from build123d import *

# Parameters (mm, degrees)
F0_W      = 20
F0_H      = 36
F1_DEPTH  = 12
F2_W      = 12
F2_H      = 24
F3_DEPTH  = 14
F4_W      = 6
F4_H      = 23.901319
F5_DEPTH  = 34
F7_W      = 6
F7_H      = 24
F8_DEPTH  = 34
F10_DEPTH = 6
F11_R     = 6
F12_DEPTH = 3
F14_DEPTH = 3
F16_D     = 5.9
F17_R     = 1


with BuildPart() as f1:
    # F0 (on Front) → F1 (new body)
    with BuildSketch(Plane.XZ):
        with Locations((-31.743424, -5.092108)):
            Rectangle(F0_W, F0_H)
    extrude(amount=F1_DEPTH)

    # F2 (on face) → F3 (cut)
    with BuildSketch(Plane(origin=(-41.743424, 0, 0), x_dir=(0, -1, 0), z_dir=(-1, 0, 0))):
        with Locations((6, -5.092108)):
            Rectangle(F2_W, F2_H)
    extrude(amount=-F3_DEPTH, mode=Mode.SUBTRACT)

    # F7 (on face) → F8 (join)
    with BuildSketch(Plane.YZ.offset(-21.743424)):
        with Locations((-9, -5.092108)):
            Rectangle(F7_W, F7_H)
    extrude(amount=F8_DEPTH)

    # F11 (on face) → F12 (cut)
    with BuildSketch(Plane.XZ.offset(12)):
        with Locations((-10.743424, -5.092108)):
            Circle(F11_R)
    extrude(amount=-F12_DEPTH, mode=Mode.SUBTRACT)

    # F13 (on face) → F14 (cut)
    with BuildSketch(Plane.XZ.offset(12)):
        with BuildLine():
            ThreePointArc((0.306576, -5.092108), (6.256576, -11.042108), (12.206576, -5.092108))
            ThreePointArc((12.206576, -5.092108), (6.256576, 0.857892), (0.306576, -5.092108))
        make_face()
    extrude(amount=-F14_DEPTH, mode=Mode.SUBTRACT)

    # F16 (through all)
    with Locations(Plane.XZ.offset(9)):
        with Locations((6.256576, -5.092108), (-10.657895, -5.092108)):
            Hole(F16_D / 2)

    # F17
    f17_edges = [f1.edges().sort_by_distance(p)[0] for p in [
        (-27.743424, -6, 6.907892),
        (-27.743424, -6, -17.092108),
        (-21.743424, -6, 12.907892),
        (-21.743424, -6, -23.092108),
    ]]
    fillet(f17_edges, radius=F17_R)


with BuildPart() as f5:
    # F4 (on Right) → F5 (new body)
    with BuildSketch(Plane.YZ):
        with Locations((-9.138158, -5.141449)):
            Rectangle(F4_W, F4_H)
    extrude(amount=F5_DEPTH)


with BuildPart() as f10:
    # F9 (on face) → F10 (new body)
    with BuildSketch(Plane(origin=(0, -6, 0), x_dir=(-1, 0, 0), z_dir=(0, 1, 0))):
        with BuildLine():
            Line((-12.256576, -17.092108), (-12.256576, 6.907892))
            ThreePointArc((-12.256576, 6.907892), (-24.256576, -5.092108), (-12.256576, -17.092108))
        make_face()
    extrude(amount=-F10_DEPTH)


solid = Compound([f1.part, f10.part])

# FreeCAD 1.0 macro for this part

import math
import FreeCAD as App
import Part
import Sketcher


def edges_at(feature, points):
    """Names of the edges that pass closest to the given points."""
    edges = feature.Shape.Edges
    near = lambda p: min(range(len(edges)), key=lambda i: edges[i].distToShape(Part.Vertex(*p))[0])
    return sorted({f"Edge{near(p) + 1}" for p in points})

doc = App.newDocument("Part")
body = doc.addObject("PartDesign::Body", "Body")

# Sketch on XZ plane
sketch1 = doc.addObject("Sketcher::SketchObject", "Sketch")
body.addObject(sketch1)
sketch1.AttachmentSupport = (doc.XZ_Plane, [""])
sketch1.MapMode = "FlatFace"
sketch1.addGeometry([
    Part.LineSegment(App.Vector(-42, 13, 0), App.Vector(-42, -23, 0)),
    Part.LineSegment(App.Vector(-42, -23, 0), App.Vector(-22, -23, 0)),
    Part.LineSegment(App.Vector(-22, -23, 0), App.Vector(-22, 13, 0)),
    Part.LineSegment(App.Vector(-22, 13, 0), App.Vector(-42, 13, 0)),
], False)
sketch1.addConstraint([
    Sketcher.Constraint("Coincident", 0, 2, 1, 1),
    Sketcher.Constraint("Coincident", 1, 2, 2, 1),
    Sketcher.Constraint("Coincident", 2, 2, 3, 1),
    Sketcher.Constraint("Coincident", 3, 2, 0, 1),
    Sketcher.Constraint("Vertical", 0),
    Sketcher.Constraint("Horizontal", 1),
    Sketcher.Constraint("Vertical", 2),
    Sketcher.Constraint("Horizontal", 3),
    Sketcher.Constraint("DistanceX", 1, 1, 1, 2, 20.0),
    Sketcher.Constraint("DistanceY", 0, 2, 0, 1, 36.0),
    Sketcher.Constraint("DistanceX", 0, 2, -1, 1, 41.743424),
    Sketcher.Constraint("DistanceY", 0, 2, -1, 1, 23.092108),
])
pad1 = doc.addObject("PartDesign::Pad", "Pad")
body.addObject(pad1)
pad1.Profile = sketch1
pad1.Length = 12

# Sketch on YZ plane
sketch2 = doc.addObject("Sketcher::SketchObject", "Sketch001")
body.addObject(sketch2)
sketch2.AttachmentSupport = (doc.YZ_Plane, [""])
sketch2.MapMode = "FlatFace"
sketch2.AttachmentOffset = App.Placement(App.Vector(0, 0, -41.743424), App.Rotation())
sketch2.addGeometry([
    Part.LineSegment(App.Vector(0, 7, 0), App.Vector(0, -17, 0)),
    Part.LineSegment(App.Vector(0, -17, 0), App.Vector(-12, -17, 0)),
    Part.LineSegment(App.Vector(-12, -17, 0), App.Vector(-12, 7, 0)),
    Part.LineSegment(App.Vector(-12, 7, 0), App.Vector(0, 7, 0)),
], False)
sketch2.addConstraint([
    Sketcher.Constraint("Coincident", 0, 2, 1, 1),
    Sketcher.Constraint("Coincident", 1, 2, 2, 1),
    Sketcher.Constraint("Coincident", 2, 2, 3, 1),
    Sketcher.Constraint("Coincident", 3, 2, 0, 1),
    Sketcher.Constraint("Vertical", 0),
    Sketcher.Constraint("Horizontal", 1),
    Sketcher.Constraint("Vertical", 2),
    Sketcher.Constraint("Horizontal", 3),
    Sketcher.Constraint("PointOnObject", 0, 2, -2),
    Sketcher.Constraint("DistanceX", 1, 2, 1, 1, 12.0),
    Sketcher.Constraint("DistanceY", 0, 2, 0, 1, 24.0),
    Sketcher.Constraint("DistanceY", 0, 2, -1, 1, 17.092108),
])
pocket1 = doc.addObject("PartDesign::Pocket", "Pocket")
body.addObject(pocket1)
pocket1.Profile = sketch2
pocket1.Length = 14
pocket1.Reversed = True

# Sketch on YZ plane
sketch3 = doc.addObject("Sketcher::SketchObject", "Sketch002")
body.addObject(sketch3)
sketch3.AttachmentSupport = (doc.YZ_Plane, [""])
sketch3.MapMode = "FlatFace"
sketch3.AttachmentOffset = App.Placement(App.Vector(0, 0, -21.743424), App.Rotation())
sketch3.addGeometry([
    Part.LineSegment(App.Vector(-12, 7, 0), App.Vector(-12, -17, 0)),
    Part.LineSegment(App.Vector(-12, -17, 0), App.Vector(-6, -17, 0)),
    Part.LineSegment(App.Vector(-6, -17, 0), App.Vector(-6, 7, 0)),
    Part.LineSegment(App.Vector(-6, 7, 0), App.Vector(-12, 7, 0)),
], False)
sketch3.addConstraint([
    Sketcher.Constraint("Coincident", 0, 2, 1, 1),
    Sketcher.Constraint("Coincident", 1, 2, 2, 1),
    Sketcher.Constraint("Coincident", 2, 2, 3, 1),
    Sketcher.Constraint("Coincident", 3, 2, 0, 1),
    Sketcher.Constraint("Vertical", 0),
    Sketcher.Constraint("Horizontal", 1),
    Sketcher.Constraint("Vertical", 2),
    Sketcher.Constraint("Horizontal", 3),
    Sketcher.Constraint("DistanceX", 1, 1, 1, 2, 6.0),
    Sketcher.Constraint("DistanceY", 0, 2, 0, 1, 24.0),
    Sketcher.Constraint("DistanceX", 0, 2, -1, 1, 12.0),
    Sketcher.Constraint("DistanceY", 0, 2, -1, 1, 17.092108),
])
pad2 = doc.addObject("PartDesign::Pad", "Pad001")
body.addObject(pad2)
pad2.Profile = sketch3
pad2.Length = 34

# Sketch on XZ plane
sketch4 = doc.addObject("Sketcher::SketchObject", "Sketch003")
body.addObject(sketch4)
sketch4.AttachmentSupport = (doc.XZ_Plane, [""])
sketch4.MapMode = "FlatFace"
sketch4.AttachmentOffset = App.Placement(App.Vector(0, 0, 12), App.Rotation())
sketch4.addGeometry(Part.Circle(App.Vector(-11, -5, 0), App.Vector(0, 0, 1), 6), False)
sketch4.addConstraint([
    Sketcher.Constraint("Diameter", 0, 12.0),
    Sketcher.Constraint("DistanceX", 0, 3, -1, 1, 10.743424),
    Sketcher.Constraint("DistanceY", 0, 3, -1, 1, 5.092108),
])
pocket2 = doc.addObject("PartDesign::Pocket", "Pocket001")
body.addObject(pocket2)
pocket2.Profile = sketch4
pocket2.Length = 3

# Sketch on XZ plane
sketch5 = doc.addObject("Sketcher::SketchObject", "Sketch004")
body.addObject(sketch5)
sketch5.AttachmentSupport = (doc.XZ_Plane, [""])
sketch5.MapMode = "FlatFace"
sketch5.AttachmentOffset = App.Placement(App.Vector(0, 0, 12), App.Rotation())
sketch5.addGeometry(Part.Circle(App.Vector(6, -5, 0), App.Vector(0, 0, 1), 6), False)
sketch5.addConstraint([
    Sketcher.Constraint("Diameter", 0, 11.9),
    Sketcher.Constraint("DistanceX", -1, 1, 0, 3, 6.256576),
    Sketcher.Constraint("DistanceY", 0, 3, -1, 1, 5.092108),
])
pocket3 = doc.addObject("PartDesign::Pocket", "Pocket002")
body.addObject(pocket3)
pocket3.Profile = sketch5
pocket3.Length = 3

# Sketch on XZ plane
sketch6 = doc.addObject("Sketcher::SketchObject", "Sketch005")
body.addObject(sketch6)
sketch6.AttachmentSupport = (doc.XZ_Plane, [""])
sketch6.MapMode = "FlatFace"
sketch6.AttachmentOffset = App.Placement(App.Vector(0, 0, 9), App.Rotation())
sketch6.addGeometry([
    Part.Circle(App.Vector(6.3, -5.1, 0), App.Vector(0, 0, 1), 3),
    Part.Circle(App.Vector(-10.7, -5.1, 0), App.Vector(0, 0, 1), 3),
], False)
sketch6.addConstraint([
    Sketcher.Constraint("Equal", 0, 1),
    Sketcher.Constraint("Horizontal", 0, 3, 1, 3),
    Sketcher.Constraint("Diameter", 0, 5.9),
    Sketcher.Constraint("DistanceX", 1, 3, 0, 3, 16.914471),
    Sketcher.Constraint("DistanceX", -1, 1, 0, 3, 6.256576),
    Sketcher.Constraint("DistanceY", 0, 3, -1, 1, 5.092108),
])
doc.recompute()
hole = doc.addObject("PartDesign::Hole", "Hole")
body.addObject(hole)
hole.Profile = sketch6
hole.ThreadType = "None"
hole.Diameter = 5.9
hole.DepthType = "ThroughAll"
doc.recompute()

fillet = doc.addObject("PartDesign::Fillet", "Fillet")
body.addObject(fillet)
fillet.Base = (hole, edges_at(hole, [
    (-27.743, -6, 6.908),
    (-27.743, -6, -17.092),
    (-21.743, -6, 12.908),
    (-21.743, -6, -23.092),
]))
fillet.Radius = 1
body2 = doc.addObject("PartDesign::Body", "Body001")

# Sketch on YZ plane
sketch7 = doc.addObject("Sketcher::SketchObject", "Sketch006")
body2.addObject(sketch7)
sketch7.AttachmentSupport = (doc.getObject("YZ_Plane001"), [""])
sketch7.MapMode = "FlatFace"
sketch7.addGeometry([
    Part.LineSegment(App.Vector(-12, 7, 0), App.Vector(-12, -17, 0)),
    Part.LineSegment(App.Vector(-12, -17, 0), App.Vector(-6, -17, 0)),
    Part.LineSegment(App.Vector(-6, -17, 0), App.Vector(-6, 7, 0)),
    Part.LineSegment(App.Vector(-6, 7, 0), App.Vector(-12, 7, 0)),
], False)
sketch7.addConstraint([
    Sketcher.Constraint("Coincident", 0, 2, 1, 1),
    Sketcher.Constraint("Coincident", 1, 2, 2, 1),
    Sketcher.Constraint("Coincident", 2, 2, 3, 1),
    Sketcher.Constraint("Coincident", 3, 2, 0, 1),
    Sketcher.Constraint("Vertical", 0),
    Sketcher.Constraint("Horizontal", 1),
    Sketcher.Constraint("Vertical", 2),
    Sketcher.Constraint("Horizontal", 3),
    Sketcher.Constraint("DistanceX", 1, 1, 1, 2, 6.0),
    Sketcher.Constraint("DistanceY", 0, 2, 0, 1, 23.901319),
    Sketcher.Constraint("DistanceX", 0, 2, -1, 1, 12.138158),
    Sketcher.Constraint("DistanceY", 0, 2, -1, 1, 17.092108),
])
pad3 = doc.addObject("PartDesign::Pad", "Pad002")
body2.addObject(pad3)
pad3.Profile = sketch7
pad3.Length = 34
body3 = doc.addObject("PartDesign::Body", "Body002")

# Sketch on XZ plane
sketch8 = doc.addObject("Sketcher::SketchObject", "Sketch007")
body3.addObject(sketch8)
sketch8.AttachmentSupport = (doc.getObject("XZ_Plane002"), [""])
sketch8.MapMode = "FlatFace"
sketch8.AttachmentOffset = App.Placement(App.Vector(0, 0, 6), App.Rotation())
sketch8.addGeometry([
    Part.LineSegment(App.Vector(12, -17, 0), App.Vector(12, 7, 0)),
    Part.ArcOfCircle(Part.Circle(App.Vector(12, -5, 0), App.Vector(0, 0, 1), 12), math.radians(-90), math.radians(90)),
], False)
sketch8.addConstraint([
    Sketcher.Constraint("Coincident", 0, 1, 1, 1),
    Sketcher.Constraint("Coincident", 1, 2, 0, 2),
    Sketcher.Constraint("Vertical", 0),
    Sketcher.Constraint("Vertical", 1, 3, 0, 1),
    Sketcher.Constraint("Radius", 1, 12.0),
    Sketcher.Constraint("DistanceX", -1, 1, 1, 3, 12.256576),
    Sketcher.Constraint("DistanceY", 1, 3, -1, 1, 5.092108),
])
pad4 = doc.addObject("PartDesign::Pad", "Pad003")
body3.addObject(pad4)
pad4.Profile = sketch8
pad4.Length = 6
body2.Visibility = False

doc.recompute()
